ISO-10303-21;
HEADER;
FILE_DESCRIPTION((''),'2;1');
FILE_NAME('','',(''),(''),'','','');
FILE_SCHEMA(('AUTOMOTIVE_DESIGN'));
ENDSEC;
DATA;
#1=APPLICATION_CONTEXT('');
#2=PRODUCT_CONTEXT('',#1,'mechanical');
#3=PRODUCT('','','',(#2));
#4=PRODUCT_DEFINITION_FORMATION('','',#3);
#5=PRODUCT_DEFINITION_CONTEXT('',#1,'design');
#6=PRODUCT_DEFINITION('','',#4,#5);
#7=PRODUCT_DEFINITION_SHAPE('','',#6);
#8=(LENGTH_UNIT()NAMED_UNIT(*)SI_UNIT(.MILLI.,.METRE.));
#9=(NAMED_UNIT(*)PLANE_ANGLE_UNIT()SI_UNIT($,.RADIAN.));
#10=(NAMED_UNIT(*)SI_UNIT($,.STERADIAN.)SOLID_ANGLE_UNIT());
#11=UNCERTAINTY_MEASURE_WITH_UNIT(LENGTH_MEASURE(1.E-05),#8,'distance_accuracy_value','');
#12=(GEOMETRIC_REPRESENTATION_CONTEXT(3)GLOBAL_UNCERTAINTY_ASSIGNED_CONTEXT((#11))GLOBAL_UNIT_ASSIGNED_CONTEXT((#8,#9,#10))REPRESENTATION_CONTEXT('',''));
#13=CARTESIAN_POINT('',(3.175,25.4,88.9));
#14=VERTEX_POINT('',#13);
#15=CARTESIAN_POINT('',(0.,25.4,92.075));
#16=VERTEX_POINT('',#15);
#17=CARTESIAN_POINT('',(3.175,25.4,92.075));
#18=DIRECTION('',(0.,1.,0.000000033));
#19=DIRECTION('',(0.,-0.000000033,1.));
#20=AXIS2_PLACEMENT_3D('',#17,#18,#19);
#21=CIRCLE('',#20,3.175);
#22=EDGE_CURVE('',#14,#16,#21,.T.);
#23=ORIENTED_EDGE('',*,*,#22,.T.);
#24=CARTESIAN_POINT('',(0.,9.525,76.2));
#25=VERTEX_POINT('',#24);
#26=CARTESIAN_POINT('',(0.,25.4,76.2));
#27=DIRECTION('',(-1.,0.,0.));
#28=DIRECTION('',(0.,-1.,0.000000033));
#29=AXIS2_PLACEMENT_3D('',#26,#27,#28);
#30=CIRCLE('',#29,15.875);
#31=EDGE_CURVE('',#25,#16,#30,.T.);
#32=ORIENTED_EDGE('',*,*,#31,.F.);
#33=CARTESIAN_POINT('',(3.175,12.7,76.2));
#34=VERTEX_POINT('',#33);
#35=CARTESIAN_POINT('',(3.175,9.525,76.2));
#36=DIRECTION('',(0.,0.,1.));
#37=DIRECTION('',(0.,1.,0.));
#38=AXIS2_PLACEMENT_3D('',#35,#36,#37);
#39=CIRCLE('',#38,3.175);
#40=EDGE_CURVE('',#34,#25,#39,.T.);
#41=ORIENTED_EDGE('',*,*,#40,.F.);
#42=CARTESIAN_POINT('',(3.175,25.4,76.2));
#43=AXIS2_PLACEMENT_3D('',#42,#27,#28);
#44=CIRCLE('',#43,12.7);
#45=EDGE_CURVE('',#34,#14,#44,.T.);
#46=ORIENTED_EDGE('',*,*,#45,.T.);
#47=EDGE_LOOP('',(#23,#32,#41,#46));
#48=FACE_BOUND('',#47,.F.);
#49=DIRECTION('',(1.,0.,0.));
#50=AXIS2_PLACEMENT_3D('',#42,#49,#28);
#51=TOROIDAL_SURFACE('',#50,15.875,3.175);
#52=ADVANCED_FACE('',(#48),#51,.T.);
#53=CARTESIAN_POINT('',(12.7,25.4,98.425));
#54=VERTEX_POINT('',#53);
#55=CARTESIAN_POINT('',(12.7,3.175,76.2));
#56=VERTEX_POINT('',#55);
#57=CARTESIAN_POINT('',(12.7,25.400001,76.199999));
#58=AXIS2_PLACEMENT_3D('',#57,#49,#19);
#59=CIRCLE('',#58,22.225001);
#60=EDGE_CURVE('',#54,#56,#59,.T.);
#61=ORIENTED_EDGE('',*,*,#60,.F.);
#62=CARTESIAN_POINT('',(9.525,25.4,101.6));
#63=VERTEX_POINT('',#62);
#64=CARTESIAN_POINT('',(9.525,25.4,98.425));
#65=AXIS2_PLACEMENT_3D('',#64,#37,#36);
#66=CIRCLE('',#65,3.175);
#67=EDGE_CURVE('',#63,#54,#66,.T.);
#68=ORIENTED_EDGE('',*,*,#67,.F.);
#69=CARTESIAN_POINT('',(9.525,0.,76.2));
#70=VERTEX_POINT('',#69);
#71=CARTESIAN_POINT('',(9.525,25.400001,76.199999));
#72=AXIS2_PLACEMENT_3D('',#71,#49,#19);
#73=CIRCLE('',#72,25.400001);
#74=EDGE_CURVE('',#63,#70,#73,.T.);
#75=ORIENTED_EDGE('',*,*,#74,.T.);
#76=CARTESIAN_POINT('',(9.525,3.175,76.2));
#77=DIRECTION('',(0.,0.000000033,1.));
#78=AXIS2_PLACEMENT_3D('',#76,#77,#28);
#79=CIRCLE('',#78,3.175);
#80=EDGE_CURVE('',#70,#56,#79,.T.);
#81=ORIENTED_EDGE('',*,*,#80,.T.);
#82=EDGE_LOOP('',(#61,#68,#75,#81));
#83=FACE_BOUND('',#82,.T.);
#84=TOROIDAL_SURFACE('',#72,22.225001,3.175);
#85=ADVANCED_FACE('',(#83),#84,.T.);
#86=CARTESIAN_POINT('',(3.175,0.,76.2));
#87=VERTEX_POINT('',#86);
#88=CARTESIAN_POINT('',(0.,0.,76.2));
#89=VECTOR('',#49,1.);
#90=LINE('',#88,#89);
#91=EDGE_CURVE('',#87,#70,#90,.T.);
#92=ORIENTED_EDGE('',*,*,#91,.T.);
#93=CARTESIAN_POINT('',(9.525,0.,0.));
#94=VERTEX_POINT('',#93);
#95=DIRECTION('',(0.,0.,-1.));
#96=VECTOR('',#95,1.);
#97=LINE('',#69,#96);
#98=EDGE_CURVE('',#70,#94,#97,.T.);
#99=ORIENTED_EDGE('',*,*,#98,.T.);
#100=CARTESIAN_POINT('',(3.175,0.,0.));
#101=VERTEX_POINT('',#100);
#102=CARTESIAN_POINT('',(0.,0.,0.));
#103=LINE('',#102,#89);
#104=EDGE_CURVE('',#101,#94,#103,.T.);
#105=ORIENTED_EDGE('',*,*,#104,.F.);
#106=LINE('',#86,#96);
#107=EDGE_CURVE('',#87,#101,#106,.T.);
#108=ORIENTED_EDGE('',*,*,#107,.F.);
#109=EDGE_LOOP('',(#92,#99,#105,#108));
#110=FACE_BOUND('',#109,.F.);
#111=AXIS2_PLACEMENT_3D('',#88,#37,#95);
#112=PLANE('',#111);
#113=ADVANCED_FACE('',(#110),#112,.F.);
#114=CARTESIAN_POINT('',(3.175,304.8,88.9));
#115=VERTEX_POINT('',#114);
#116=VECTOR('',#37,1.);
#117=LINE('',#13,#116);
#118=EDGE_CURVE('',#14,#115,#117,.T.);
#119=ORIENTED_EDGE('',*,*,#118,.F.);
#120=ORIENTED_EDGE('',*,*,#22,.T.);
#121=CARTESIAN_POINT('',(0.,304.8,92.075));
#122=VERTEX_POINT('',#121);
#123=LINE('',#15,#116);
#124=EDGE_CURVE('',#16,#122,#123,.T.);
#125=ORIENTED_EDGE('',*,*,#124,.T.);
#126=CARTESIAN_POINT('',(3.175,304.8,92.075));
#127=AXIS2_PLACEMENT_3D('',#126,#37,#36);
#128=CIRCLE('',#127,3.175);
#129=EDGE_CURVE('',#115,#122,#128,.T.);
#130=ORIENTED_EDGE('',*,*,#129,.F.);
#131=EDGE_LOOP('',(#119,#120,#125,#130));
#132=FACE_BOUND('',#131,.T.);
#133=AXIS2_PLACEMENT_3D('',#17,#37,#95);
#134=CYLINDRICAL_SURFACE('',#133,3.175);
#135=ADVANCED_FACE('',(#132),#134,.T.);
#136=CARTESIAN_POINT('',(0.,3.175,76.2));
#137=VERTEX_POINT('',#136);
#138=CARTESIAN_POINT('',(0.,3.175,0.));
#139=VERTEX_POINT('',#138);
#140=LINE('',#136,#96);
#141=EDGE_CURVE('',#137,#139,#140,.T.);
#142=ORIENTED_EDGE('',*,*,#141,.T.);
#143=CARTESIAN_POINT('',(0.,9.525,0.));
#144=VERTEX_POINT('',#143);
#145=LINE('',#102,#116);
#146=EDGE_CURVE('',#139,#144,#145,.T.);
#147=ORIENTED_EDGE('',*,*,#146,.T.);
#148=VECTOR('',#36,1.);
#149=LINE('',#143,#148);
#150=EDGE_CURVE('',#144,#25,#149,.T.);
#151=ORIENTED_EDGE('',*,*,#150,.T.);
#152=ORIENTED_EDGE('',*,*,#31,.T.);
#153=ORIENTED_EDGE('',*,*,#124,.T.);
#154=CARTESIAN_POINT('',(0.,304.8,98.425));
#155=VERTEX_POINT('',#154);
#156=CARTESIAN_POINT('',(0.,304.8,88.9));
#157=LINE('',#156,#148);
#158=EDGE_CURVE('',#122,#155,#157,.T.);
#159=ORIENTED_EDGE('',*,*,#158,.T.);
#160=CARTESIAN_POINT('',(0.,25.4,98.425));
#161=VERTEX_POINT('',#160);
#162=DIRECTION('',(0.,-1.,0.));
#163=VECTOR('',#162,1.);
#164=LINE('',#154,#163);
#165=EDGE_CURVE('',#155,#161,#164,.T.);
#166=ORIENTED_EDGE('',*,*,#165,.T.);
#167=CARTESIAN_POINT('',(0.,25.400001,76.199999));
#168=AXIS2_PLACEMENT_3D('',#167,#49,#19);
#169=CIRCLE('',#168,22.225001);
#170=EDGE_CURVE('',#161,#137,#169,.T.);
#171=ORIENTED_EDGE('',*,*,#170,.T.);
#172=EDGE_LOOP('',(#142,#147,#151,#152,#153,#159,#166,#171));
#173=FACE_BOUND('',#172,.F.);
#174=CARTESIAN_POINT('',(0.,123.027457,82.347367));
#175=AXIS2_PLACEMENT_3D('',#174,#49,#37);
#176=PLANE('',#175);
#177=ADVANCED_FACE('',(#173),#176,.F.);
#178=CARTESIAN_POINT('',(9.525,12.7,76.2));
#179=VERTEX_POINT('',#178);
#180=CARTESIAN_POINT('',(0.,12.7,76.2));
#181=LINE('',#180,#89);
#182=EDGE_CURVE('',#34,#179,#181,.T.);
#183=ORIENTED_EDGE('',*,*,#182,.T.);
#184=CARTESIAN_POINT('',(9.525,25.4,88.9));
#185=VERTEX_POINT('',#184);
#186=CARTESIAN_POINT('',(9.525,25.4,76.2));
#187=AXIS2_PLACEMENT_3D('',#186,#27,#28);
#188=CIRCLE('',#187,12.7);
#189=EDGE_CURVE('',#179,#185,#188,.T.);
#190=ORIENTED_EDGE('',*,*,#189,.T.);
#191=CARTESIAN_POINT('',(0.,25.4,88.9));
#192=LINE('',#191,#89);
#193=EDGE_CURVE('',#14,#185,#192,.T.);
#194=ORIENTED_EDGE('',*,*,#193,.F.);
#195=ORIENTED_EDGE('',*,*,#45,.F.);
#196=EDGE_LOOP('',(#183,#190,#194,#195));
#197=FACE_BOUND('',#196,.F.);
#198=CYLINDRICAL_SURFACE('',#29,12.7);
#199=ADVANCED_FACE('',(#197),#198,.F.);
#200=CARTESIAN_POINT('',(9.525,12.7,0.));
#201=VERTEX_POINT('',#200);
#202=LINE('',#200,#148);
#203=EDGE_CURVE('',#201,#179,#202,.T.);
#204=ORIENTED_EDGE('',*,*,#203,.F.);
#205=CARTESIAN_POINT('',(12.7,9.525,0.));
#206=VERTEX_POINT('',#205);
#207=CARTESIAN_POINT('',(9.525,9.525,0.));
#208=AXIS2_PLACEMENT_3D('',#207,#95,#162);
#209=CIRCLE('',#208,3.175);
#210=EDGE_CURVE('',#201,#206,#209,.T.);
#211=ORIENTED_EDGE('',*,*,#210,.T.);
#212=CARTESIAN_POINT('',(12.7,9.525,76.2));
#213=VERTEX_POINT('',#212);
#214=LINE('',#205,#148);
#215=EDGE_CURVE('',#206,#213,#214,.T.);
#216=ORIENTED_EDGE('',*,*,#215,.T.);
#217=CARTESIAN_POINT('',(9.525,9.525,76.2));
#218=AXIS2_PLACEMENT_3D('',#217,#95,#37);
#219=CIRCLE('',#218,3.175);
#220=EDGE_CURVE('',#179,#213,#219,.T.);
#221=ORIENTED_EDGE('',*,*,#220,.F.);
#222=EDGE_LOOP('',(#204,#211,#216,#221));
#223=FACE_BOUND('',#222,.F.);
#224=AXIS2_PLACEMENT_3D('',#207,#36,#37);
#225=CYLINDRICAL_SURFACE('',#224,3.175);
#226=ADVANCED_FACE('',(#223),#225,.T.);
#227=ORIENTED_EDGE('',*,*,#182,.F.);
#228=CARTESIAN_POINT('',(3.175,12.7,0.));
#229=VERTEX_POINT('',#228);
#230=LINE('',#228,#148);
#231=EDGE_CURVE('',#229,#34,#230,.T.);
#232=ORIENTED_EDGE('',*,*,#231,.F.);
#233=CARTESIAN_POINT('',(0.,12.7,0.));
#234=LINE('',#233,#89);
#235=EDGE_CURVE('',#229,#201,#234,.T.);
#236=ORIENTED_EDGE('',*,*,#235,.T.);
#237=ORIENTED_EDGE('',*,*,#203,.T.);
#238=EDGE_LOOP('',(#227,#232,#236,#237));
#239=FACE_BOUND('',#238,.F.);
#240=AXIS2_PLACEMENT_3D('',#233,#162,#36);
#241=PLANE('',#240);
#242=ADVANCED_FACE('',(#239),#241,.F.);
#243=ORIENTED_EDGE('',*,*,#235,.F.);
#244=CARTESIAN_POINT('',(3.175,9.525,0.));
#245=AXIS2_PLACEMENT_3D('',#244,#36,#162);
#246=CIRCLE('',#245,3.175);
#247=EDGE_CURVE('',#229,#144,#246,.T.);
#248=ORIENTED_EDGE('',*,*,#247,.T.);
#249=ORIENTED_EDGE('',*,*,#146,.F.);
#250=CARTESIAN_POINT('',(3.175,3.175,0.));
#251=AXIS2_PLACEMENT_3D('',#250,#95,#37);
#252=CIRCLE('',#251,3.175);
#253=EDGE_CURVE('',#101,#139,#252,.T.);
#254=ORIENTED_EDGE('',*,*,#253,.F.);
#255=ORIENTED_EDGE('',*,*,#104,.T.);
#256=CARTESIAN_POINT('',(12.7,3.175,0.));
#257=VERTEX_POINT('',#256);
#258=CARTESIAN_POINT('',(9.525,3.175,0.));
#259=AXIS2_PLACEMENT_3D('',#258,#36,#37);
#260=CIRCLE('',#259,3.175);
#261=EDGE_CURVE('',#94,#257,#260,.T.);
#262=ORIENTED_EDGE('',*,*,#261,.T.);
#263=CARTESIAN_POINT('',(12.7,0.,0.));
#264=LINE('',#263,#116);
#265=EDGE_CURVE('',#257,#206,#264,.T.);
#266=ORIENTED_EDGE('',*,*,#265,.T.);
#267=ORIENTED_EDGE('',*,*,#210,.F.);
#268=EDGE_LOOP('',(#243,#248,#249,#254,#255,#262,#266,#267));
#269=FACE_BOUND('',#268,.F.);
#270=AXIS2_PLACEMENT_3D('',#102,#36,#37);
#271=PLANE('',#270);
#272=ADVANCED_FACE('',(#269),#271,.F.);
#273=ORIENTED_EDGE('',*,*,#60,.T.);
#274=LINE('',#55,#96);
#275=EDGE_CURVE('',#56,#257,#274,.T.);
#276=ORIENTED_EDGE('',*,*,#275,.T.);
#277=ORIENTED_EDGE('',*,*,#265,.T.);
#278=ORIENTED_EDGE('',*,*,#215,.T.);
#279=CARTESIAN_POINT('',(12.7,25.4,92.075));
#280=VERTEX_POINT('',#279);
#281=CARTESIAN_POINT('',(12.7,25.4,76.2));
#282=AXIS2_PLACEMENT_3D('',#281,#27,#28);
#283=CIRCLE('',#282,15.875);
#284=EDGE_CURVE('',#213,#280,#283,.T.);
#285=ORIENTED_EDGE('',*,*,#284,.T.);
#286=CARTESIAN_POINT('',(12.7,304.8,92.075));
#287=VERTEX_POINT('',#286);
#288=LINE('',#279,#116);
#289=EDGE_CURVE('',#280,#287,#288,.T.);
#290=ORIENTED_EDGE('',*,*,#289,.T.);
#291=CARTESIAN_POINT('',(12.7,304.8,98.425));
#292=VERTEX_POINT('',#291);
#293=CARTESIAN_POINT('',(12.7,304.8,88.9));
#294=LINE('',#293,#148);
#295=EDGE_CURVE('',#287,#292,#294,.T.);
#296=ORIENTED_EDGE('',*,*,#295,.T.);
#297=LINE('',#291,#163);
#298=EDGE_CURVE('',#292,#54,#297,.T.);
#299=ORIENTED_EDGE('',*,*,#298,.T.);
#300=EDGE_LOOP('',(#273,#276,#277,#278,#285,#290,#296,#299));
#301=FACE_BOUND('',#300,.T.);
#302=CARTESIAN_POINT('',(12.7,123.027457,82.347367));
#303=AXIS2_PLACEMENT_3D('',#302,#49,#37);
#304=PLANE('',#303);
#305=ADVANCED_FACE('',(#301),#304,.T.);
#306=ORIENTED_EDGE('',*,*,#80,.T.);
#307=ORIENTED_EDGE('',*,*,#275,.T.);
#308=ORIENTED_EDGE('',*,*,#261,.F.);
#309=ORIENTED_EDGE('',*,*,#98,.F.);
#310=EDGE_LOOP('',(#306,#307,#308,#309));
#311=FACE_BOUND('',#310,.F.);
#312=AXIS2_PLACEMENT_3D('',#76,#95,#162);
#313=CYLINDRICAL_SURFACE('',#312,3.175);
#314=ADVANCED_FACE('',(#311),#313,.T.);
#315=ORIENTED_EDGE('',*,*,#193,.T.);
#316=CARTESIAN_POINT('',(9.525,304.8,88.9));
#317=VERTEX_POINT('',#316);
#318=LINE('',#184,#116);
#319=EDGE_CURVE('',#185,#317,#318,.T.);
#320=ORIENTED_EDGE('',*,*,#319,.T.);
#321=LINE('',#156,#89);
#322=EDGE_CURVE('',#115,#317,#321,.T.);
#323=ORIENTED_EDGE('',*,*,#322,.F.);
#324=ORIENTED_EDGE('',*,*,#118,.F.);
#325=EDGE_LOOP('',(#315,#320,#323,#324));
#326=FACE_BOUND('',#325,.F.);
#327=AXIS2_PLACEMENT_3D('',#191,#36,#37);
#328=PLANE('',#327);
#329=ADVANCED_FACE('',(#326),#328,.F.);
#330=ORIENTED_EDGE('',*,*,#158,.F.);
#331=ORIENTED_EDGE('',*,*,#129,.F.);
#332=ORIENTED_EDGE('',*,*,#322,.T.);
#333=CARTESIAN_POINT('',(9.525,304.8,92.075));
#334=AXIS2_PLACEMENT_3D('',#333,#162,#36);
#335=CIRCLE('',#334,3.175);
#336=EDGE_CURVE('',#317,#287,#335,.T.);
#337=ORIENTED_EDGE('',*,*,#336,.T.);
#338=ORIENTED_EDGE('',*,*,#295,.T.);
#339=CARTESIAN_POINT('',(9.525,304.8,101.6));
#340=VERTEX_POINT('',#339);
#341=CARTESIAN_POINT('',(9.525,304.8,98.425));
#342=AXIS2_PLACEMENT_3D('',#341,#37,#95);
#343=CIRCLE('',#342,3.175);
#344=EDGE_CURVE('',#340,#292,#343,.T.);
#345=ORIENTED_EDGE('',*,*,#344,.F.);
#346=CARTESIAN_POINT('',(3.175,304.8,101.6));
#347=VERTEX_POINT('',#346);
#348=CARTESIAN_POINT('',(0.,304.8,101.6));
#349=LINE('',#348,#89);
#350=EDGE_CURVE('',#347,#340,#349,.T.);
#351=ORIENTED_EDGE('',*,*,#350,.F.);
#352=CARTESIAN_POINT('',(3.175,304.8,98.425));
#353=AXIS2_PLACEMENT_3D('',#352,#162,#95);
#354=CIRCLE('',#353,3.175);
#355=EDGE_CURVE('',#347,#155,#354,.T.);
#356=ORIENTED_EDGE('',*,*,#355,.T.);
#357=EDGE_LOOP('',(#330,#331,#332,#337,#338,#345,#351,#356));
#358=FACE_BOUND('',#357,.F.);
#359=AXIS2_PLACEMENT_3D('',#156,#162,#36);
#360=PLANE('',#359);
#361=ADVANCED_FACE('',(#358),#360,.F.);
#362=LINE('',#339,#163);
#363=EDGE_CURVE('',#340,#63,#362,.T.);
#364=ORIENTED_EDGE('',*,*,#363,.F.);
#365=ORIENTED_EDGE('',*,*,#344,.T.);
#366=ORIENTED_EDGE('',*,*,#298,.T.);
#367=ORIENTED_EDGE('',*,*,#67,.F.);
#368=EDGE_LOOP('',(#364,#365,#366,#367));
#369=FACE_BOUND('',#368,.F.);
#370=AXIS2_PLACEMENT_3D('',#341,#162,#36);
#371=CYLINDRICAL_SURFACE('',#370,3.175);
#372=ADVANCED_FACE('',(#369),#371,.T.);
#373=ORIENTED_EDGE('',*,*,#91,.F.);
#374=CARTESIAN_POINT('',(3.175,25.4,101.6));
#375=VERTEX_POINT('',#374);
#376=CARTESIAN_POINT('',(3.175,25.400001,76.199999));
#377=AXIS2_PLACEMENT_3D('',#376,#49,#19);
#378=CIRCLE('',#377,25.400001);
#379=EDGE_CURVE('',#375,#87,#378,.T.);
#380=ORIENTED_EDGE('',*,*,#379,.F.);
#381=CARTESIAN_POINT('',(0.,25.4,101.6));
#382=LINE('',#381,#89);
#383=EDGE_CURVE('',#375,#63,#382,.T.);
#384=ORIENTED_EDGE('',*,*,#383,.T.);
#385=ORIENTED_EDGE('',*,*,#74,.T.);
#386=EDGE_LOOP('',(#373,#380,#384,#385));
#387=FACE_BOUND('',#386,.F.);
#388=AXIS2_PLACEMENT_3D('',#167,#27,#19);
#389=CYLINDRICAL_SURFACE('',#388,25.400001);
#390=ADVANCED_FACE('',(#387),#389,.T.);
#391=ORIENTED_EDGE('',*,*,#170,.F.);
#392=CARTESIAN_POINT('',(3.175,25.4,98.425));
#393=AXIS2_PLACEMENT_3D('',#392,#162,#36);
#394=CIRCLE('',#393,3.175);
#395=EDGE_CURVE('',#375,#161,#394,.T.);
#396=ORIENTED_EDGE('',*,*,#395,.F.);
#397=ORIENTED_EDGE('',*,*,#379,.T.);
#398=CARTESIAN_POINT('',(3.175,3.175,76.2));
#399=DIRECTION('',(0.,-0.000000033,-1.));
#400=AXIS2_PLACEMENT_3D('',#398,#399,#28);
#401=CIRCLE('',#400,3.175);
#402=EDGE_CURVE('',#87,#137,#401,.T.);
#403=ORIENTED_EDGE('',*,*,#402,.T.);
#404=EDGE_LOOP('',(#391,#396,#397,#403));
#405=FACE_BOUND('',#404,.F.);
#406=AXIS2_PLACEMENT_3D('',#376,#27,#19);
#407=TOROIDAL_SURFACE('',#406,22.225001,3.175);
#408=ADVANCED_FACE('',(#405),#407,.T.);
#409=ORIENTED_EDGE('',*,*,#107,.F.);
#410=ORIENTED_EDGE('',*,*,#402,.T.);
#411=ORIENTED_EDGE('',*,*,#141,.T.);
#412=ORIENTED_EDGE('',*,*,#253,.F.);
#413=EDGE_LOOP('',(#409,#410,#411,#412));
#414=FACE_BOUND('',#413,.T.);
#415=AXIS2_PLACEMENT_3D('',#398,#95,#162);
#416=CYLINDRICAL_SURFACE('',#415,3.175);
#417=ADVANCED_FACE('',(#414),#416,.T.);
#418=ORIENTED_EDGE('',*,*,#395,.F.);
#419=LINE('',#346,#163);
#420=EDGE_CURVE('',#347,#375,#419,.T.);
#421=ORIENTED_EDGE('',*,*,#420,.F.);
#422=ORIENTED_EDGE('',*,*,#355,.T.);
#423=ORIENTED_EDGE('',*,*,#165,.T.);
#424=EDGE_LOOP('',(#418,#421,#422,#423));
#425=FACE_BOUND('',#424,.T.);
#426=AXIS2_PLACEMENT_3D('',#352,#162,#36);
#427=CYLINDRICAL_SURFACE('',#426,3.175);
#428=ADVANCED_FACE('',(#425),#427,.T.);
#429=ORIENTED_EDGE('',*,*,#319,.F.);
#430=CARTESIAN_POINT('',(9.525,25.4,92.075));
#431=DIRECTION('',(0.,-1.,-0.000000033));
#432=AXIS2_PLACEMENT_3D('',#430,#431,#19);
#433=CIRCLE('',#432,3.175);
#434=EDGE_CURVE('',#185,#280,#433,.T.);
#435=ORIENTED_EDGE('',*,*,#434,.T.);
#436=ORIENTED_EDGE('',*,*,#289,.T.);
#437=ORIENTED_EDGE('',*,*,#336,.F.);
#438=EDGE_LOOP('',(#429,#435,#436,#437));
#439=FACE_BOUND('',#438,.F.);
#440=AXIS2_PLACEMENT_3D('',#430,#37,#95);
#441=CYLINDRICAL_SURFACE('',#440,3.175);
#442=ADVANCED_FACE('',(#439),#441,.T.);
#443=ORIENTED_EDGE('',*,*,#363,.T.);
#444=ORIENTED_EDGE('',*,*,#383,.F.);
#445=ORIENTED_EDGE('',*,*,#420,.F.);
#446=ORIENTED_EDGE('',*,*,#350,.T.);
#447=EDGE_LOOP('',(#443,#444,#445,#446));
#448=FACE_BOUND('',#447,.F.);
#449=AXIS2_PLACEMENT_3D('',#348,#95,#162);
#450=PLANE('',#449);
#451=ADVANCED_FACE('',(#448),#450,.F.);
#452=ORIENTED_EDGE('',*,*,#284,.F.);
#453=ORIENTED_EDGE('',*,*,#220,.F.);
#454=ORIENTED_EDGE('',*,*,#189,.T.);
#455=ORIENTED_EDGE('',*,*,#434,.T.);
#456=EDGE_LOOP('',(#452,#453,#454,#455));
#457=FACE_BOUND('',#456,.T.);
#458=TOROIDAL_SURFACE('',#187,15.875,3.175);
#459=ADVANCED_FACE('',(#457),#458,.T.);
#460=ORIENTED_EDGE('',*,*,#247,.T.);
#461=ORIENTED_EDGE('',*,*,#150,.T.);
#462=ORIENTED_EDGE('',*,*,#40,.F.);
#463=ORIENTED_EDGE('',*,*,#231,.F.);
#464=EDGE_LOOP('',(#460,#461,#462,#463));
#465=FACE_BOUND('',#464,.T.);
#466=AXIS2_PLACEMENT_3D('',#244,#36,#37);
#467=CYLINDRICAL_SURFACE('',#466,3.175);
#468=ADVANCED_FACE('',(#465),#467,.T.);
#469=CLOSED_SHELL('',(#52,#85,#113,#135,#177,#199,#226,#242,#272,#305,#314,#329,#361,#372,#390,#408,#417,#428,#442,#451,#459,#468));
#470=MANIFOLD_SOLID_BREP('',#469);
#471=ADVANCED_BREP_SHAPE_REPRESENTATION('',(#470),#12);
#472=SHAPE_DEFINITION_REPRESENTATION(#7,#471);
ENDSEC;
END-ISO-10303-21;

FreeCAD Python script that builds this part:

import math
import FreeCAD as App
import Part
import Sketcher

V = App.Vector
Q = App.Units.Quantity


def edges_at(feature, points):
    """Names of the edges that pass closest to the given points."""
    edges = feature.Shape.Edges
    near = lambda p: min(range(len(edges)), key=lambda i: edges[i].distToShape(Part.Vertex(*p))[0])
    return sorted({f"Edge{near(p) + 1}" for p in points})

doc = App.newDocument("Part")
params = doc.addObject("Spreadsheet::Sheet", "Params")
for row, (alias, value) in enumerate([
    ("sketch1_radius", "1 in"),
    ("sketch1_radius2", "0.5 in"),
    ("sketch1_width", "11 in"),
    ("sketch1_height", "3 in"),
    ("pad1_length", "0.5 in"),
    ("fillet_radius", "0.125 in"),
], start=1):
    params.set(f"A{row}", alias)
    params.set(f"B{row}", "=" + value)
    params.setAlias(f"B{row}", alias)

body = doc.addObject("PartDesign::Body", "Body")

sketch1 = body.newObject("Sketcher::SketchObject", "Sketch")
sketch1.AttachmentSupport = (doc.getObject("YZ_Plane"), [""])
sketch1.MapMode = "FlatFace"
sketch1.addGeometry([
    Part.LineSegment(V(0, 76, 0), V(0, 0, 0)),
    Part.LineSegment(V(0, 0, 0), V(13, 0, 0)),
    Part.LineSegment(V(13, 0, 0), V(13, 76, 0)),
    Part.ArcOfCircle(Part.Circle(V(25, 76, 0), V(0, 0, 1), 13), math.radians(90), math.radians(180)),
    Part.LineSegment(V(25, 89, 0), V(305, 89, 0)),
    Part.LineSegment(V(305, 89, 0), V(305, 102, 0)),
    Part.LineSegment(V(305, 102, 0), V(25, 102, 0)),
    Part.ArcOfCircle(Part.Circle(V(25, 76, 0), V(0, 0, 1), 25), math.radians(90), math.radians(180)),
], False)
sketch1.addConstraint([
    Sketcher.Constraint("Coincident", 0, 2, 1, 1),
    Sketcher.Constraint("Coincident", 1, 2, 2, 1),
    Sketcher.Constraint("Tangent", 2, 2, 3, 2),
    Sketcher.Constraint("Tangent", 3, 1, 4, 1),
    Sketcher.Constraint("Coincident", 4, 2, 5, 1),
    Sketcher.Constraint("Coincident", 5, 2, 6, 1),
    Sketcher.Constraint("Tangent", 6, 2, 7, 1),
    Sketcher.Constraint("Tangent", 7, 2, 0, 1),
    Sketcher.Constraint("Vertical", 0),
    Sketcher.Constraint("Horizontal", 1),
    Sketcher.Constraint("Vertical", 2),
    Sketcher.Constraint("Horizontal", 4),
    Sketcher.Constraint("Vertical", 5),
    Sketcher.Constraint("Horizontal", 6),
    Sketcher.Constraint("Coincident", 0, 2, -1, 1),
    Sketcher.Constraint("Coincident", 7, 3, 3, 3),
    Sketcher.Constraint("Radius", 7, Q("1 in")),
    Sketcher.Constraint("Radius", 3, Q("0.5 in")),
    Sketcher.Constraint("DistanceX", 4, 1, 4, 2, Q("11 in")),
    Sketcher.Constraint("DistanceY", 0, 2, 0, 1, Q("3 in")),
])
sketch1.setExpression("Constraints[16]", "Params.sketch1_radius")
sketch1.setExpression("Constraints[17]", "Params.sketch1_radius2")
sketch1.setExpression("Constraints[18]", "Params.sketch1_width")
sketch1.setExpression("Constraints[19]", "Params.sketch1_height")
pad1 = body.newObject("PartDesign::Pad", "Pad")
pad1.Profile = sketch1
pad1.setExpression("Length", "Params.pad1_length")
doc.recompute()

fillet = body.newObject("PartDesign::Fillet", "Fillet")
fillet.Base = (pad1, edges_at(pad1, [
    (12.7, 7.439, 94.161),
    (12.7, 165.1, 88.9),
    (0, 165.1, 101.6),
    (0, 165.1, 88.9),
]))
fillet.setExpression("Radius", "Params.fillet_radius")

doc.recompute()
